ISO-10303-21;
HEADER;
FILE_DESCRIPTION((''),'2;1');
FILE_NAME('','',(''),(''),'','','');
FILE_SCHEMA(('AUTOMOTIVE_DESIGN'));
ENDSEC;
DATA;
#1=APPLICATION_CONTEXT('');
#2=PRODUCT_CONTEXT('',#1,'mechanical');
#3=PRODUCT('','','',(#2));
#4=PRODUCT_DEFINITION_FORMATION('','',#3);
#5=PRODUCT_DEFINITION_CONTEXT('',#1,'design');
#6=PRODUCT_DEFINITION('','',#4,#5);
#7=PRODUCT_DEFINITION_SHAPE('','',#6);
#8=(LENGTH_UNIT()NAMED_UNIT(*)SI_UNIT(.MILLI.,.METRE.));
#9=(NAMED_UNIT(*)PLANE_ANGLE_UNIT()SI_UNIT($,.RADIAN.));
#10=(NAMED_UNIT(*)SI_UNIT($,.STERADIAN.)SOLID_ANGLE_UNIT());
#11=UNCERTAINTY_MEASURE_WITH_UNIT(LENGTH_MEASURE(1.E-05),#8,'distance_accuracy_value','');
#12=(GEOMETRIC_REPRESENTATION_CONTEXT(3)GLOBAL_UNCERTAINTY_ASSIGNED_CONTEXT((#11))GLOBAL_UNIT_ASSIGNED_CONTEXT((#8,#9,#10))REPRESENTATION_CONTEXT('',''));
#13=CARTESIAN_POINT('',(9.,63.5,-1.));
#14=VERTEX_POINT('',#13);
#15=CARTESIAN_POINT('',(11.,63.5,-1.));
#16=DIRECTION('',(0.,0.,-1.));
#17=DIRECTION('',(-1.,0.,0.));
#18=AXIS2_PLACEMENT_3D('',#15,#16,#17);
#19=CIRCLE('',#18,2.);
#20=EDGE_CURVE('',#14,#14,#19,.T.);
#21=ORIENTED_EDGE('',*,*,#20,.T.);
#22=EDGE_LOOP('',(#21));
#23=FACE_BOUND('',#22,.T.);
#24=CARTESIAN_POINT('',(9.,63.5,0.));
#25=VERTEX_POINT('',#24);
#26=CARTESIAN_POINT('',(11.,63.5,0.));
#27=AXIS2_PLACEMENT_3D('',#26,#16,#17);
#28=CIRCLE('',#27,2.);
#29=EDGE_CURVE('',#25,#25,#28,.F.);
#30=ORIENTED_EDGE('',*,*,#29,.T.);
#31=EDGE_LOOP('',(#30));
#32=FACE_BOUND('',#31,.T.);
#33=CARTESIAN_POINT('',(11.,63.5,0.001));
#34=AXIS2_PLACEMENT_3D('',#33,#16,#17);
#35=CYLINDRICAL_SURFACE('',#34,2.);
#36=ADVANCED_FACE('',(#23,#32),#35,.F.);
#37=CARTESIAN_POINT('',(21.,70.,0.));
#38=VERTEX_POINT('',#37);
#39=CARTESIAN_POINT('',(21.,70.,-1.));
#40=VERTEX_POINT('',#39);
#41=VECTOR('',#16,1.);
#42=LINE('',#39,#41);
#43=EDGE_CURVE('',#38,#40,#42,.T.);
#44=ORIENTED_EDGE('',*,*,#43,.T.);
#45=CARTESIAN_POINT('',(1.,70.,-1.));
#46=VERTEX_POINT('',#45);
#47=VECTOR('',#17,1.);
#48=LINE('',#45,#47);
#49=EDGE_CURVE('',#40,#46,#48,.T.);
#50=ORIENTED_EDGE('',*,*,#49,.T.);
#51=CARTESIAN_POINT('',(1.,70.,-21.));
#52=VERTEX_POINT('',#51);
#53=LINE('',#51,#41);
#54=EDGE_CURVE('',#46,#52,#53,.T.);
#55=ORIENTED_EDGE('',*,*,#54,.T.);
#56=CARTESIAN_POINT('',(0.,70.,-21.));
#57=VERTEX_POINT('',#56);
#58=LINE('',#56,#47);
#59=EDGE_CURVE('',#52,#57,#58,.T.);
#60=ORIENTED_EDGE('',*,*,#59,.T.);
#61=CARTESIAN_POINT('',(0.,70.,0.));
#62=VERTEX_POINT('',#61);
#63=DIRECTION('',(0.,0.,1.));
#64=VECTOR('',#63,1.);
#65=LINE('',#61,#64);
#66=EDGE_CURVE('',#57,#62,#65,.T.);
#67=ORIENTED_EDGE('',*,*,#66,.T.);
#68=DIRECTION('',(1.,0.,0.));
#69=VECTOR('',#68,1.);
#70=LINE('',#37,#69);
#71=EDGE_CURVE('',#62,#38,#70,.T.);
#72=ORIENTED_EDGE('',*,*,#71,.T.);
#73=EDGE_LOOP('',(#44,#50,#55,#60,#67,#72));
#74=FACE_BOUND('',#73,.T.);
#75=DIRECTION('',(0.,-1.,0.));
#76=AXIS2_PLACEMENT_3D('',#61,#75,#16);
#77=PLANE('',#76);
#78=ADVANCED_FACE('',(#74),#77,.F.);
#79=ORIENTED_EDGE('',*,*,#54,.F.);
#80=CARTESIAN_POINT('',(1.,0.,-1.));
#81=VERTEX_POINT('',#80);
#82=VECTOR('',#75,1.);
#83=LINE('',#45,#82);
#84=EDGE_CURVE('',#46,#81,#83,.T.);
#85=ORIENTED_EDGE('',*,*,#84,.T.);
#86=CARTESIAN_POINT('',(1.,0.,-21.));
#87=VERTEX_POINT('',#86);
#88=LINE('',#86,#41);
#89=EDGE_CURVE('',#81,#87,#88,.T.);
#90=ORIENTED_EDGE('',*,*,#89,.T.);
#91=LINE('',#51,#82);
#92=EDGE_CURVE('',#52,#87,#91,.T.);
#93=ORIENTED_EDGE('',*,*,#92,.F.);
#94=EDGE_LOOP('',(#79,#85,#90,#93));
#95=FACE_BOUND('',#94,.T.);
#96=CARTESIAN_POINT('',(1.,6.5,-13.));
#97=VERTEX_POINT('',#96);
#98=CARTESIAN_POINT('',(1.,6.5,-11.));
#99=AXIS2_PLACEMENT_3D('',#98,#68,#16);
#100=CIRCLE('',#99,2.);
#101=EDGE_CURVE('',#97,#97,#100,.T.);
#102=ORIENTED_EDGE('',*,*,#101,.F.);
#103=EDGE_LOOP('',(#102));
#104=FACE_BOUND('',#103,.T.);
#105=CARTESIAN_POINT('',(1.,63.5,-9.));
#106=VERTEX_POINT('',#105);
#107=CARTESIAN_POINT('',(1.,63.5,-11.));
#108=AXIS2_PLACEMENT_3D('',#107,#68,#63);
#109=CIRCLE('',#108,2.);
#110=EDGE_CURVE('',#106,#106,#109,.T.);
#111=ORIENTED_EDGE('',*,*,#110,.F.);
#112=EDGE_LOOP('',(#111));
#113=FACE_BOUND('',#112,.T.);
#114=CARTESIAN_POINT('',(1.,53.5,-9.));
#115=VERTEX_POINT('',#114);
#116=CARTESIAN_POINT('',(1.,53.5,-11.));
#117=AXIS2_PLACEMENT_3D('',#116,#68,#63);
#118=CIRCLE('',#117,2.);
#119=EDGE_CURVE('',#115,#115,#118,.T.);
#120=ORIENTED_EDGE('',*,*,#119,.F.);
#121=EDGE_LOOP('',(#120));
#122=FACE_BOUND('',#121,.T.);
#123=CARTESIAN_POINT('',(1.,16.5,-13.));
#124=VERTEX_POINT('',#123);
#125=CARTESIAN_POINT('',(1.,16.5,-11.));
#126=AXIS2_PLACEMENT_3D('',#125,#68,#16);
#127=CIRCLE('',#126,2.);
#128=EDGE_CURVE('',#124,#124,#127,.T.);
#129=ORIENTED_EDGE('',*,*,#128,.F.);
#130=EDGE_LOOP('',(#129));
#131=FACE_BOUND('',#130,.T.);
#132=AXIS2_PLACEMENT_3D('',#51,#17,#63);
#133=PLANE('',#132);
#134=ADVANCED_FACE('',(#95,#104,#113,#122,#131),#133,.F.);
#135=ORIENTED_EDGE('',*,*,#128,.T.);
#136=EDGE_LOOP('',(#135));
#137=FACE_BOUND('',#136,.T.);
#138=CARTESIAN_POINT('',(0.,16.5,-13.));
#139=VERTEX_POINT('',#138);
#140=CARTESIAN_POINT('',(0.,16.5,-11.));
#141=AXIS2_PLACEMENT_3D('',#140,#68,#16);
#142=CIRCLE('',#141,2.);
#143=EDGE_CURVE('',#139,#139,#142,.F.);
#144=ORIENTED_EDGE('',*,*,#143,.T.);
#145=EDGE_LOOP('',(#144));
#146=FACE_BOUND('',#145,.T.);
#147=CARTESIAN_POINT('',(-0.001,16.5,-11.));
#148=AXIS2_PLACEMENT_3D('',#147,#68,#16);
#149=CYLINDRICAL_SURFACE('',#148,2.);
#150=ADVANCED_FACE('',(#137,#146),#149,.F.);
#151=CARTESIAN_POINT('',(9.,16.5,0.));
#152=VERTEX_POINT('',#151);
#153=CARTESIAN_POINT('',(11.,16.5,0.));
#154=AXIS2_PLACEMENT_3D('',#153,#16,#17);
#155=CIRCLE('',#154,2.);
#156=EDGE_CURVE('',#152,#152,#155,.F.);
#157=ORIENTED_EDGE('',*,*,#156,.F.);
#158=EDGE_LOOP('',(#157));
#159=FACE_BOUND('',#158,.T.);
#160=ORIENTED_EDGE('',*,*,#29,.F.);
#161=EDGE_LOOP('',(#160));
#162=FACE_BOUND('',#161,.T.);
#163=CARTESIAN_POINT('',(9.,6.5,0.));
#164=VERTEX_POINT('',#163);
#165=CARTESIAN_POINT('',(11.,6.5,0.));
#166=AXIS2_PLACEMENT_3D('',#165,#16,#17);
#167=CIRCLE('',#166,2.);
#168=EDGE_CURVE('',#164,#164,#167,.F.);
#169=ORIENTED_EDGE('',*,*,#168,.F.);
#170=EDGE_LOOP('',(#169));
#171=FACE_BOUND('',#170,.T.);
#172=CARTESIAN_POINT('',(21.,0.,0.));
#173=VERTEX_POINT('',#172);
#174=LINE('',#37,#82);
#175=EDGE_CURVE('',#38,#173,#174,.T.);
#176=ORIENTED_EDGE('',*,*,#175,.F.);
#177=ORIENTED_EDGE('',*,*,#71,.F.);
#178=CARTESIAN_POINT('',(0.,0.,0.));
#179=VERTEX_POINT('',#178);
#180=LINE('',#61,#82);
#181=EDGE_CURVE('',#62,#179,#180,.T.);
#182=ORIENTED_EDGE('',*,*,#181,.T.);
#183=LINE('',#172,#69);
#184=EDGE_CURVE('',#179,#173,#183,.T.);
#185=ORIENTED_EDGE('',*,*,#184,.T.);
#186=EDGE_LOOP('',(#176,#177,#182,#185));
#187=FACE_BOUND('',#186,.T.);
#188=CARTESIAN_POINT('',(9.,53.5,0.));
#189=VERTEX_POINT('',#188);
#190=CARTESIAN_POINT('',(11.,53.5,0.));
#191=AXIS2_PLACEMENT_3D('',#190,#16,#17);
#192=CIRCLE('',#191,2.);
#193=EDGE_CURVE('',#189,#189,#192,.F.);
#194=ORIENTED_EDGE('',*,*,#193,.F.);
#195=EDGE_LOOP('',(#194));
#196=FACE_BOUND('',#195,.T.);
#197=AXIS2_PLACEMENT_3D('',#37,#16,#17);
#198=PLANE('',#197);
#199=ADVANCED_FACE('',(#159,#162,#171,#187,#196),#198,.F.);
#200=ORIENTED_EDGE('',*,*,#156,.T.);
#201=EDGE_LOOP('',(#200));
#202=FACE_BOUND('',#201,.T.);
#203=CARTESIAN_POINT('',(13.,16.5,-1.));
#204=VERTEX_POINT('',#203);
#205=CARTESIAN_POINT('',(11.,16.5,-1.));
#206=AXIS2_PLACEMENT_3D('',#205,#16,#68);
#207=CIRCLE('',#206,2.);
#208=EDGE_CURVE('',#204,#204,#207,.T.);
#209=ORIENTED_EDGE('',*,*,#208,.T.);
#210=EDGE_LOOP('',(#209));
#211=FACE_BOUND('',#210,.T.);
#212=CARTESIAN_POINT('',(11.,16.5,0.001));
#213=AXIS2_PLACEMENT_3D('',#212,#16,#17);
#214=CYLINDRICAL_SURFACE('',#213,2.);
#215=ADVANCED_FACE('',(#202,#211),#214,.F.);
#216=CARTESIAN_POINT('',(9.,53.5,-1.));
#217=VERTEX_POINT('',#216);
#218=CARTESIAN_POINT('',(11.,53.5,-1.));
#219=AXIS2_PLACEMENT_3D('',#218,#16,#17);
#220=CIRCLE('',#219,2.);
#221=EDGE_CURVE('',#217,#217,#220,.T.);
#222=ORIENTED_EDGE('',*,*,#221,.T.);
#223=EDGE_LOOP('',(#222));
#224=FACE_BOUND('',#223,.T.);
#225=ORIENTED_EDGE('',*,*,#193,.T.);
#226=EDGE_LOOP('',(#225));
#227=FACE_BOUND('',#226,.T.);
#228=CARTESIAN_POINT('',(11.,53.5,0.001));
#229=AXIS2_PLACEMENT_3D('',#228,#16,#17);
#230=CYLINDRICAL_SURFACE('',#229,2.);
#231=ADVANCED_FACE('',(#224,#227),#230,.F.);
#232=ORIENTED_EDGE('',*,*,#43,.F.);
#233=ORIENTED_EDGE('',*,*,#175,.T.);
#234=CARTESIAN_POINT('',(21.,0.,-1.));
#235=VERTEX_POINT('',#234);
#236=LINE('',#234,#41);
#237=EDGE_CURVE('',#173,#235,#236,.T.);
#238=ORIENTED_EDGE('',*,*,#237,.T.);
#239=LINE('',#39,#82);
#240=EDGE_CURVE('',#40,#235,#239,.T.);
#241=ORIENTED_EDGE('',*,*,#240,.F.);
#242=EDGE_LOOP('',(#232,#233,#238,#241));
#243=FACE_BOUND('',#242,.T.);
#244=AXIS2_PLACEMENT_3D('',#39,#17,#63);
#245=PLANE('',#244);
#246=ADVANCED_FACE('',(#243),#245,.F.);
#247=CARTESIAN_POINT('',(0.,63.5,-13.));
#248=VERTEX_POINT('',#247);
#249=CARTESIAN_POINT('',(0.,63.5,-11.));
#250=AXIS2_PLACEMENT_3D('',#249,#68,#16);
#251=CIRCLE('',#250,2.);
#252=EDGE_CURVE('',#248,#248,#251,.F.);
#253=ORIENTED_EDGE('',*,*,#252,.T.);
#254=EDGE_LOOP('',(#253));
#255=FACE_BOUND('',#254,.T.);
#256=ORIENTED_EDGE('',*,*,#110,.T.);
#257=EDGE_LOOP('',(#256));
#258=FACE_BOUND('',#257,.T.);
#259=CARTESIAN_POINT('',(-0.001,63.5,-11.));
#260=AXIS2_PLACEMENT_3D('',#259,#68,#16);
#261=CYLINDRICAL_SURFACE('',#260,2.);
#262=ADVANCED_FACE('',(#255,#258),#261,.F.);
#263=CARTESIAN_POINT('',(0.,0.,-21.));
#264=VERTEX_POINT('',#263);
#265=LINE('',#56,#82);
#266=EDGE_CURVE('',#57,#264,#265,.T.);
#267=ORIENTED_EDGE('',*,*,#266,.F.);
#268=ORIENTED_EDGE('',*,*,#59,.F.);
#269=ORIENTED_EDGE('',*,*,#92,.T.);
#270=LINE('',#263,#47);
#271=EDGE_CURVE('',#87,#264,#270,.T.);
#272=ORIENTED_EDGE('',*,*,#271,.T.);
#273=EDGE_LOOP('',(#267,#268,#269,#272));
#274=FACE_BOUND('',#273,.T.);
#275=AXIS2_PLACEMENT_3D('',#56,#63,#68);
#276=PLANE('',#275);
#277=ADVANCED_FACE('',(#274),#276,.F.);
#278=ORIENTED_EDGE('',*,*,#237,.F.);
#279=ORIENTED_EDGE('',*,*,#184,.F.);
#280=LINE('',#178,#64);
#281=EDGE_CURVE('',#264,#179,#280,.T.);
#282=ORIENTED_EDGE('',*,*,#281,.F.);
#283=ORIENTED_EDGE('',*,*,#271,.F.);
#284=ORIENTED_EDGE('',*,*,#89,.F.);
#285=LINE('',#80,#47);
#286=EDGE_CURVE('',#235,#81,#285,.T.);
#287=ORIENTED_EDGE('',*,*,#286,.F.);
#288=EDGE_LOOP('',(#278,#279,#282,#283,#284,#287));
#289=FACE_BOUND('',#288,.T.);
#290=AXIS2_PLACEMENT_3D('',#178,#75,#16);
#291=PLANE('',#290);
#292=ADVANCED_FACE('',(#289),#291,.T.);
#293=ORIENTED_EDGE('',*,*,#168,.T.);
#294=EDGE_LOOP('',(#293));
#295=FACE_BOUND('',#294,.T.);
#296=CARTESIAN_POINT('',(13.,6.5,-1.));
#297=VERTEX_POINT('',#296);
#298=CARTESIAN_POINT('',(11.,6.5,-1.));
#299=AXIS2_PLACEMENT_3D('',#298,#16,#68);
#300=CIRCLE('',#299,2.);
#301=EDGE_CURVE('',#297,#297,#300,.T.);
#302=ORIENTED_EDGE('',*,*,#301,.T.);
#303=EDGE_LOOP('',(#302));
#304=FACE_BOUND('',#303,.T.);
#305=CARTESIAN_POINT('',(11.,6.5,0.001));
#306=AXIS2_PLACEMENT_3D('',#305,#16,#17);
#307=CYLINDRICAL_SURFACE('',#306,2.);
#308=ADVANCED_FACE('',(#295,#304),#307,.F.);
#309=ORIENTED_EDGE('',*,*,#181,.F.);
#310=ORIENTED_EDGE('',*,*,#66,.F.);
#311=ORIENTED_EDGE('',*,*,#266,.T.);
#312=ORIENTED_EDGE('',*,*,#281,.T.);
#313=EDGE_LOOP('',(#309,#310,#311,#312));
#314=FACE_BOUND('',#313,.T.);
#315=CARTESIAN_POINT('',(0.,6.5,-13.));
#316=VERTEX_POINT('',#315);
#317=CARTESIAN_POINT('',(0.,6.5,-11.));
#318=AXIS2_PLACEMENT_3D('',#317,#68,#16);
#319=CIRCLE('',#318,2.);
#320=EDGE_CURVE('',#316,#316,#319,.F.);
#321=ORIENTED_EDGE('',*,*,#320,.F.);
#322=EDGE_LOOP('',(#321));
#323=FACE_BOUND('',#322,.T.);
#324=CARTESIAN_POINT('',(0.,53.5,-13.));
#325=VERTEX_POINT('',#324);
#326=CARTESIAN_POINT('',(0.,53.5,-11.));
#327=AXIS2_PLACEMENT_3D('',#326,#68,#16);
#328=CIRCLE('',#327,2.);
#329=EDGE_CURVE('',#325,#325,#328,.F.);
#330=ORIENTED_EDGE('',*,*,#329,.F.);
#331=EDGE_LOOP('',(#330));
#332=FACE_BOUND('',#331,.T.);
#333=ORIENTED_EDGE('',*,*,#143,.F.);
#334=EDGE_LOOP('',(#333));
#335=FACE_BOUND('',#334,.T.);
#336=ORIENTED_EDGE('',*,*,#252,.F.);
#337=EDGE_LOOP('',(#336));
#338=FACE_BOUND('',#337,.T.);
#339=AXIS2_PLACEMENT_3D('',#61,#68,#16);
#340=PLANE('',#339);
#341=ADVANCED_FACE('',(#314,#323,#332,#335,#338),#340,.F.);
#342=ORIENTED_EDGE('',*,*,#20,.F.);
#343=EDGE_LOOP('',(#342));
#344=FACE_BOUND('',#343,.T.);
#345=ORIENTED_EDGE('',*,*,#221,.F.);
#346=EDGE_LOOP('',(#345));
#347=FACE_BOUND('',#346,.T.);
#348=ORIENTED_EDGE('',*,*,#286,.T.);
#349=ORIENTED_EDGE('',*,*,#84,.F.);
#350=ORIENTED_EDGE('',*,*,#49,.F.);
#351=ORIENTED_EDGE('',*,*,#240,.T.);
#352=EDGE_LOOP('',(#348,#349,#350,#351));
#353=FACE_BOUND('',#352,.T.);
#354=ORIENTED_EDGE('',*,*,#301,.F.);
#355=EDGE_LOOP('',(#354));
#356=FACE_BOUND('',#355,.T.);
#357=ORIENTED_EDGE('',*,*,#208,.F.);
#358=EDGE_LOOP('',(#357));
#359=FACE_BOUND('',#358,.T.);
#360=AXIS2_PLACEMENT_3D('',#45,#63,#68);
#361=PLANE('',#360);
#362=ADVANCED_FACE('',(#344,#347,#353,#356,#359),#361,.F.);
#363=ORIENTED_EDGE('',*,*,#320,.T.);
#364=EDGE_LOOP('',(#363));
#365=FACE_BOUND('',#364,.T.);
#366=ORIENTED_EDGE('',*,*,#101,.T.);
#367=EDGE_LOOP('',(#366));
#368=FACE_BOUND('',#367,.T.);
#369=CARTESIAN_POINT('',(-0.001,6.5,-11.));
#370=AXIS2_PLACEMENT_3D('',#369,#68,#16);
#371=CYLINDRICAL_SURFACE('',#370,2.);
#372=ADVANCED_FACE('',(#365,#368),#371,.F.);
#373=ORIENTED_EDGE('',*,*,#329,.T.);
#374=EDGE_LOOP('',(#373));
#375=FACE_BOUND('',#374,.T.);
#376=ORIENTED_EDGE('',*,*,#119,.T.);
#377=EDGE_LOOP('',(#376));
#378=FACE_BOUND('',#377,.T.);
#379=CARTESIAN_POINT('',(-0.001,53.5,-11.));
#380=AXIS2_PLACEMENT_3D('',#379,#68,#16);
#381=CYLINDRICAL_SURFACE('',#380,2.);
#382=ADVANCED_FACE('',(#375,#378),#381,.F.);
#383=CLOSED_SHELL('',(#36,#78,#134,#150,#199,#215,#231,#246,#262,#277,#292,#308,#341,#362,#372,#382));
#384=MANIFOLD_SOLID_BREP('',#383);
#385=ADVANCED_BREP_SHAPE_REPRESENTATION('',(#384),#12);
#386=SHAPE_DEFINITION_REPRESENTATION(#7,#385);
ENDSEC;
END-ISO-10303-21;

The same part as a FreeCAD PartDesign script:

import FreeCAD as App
import Part
import Sketcher
Q = App.Units.Quantity


def add_polygon(sketch, points):
    """Adds a closed chain of lines whose ends are joined by coincident constraints."""
    first, n = sketch.GeometryCount, len(points)
    for a, b in zip(points, points[1:] + points[:1]):
        sketch.addGeometry(Part.LineSegment(App.Vector(*a, 0), App.Vector(*b, 0)), False)
    for i in range(n):
        sketch.addConstraint(Sketcher.Constraint("Coincident", first + i, 2, first + (i + 1) % n, 1))

doc = App.newDocument("Part")
body = doc.addObject("PartDesign::Body", "Body")

sketch1 = doc.addObject("Sketcher::SketchObject", "Sketch")
body.addObject(sketch1)
sketch1.AttachmentSupport = (doc.XZ_Plane, [""])
sketch1.MapMode = "FlatFace"
add_polygon(sketch1, [(0, -21), (0, 0), (21, 0), (21, -1), (1, -1), (1, -21)])
sketch1.addConstraint([
    Sketcher.Constraint("Vertical", 0),
    Sketcher.Constraint("Horizontal", 1),
    Sketcher.Constraint("Vertical", 2),
    Sketcher.Constraint("Horizontal", 3),
    Sketcher.Constraint("Vertical", 4),
    Sketcher.Constraint("Horizontal", 5),
    Sketcher.Constraint("Coincident", 0, 2, -1, 1),
    Sketcher.Constraint("Equal", 1, 0),
    Sketcher.Constraint("Equal", 5, 2),
    Sketcher.Constraint("DistanceX", 1, 1, 1, 2, Q("21 mm")),
    Sketcher.Constraint("DistanceX", 3, 2, 3, 1, Q("20 mm")),
])
pad1 = doc.addObject("PartDesign::Pad", "Pad")
body.addObject(pad1)
pad1.Profile = sketch1
pad1.Length = 70
pad1.Reversed = True

sketch2 = doc.addObject("Sketcher::SketchObject", "Sketch001")
body.addObject(sketch2)
sketch2.AttachmentSupport = (doc.YZ_Plane, [""])
sketch2.MapMode = "FlatFace"
sketch2.AttachmentOffset = App.Placement(App.Vector(0, 0, 1), App.Rotation())
sketch2.addGeometry(Part.Circle(App.Vector(16.5, -11, 0), App.Vector(0, 0, 1), 2), False)
sketch2.addConstraint([
    Sketcher.Constraint("Diameter", 0, Q("4 mm")),
    Sketcher.Constraint("DistanceY", 0, 3, -1, 1, Q("11 mm")),
    Sketcher.Constraint("DistanceX", -1, 1, 0, 3, Q("16.5 mm")),
])
pocket1 = doc.addObject("PartDesign::Pocket", "Pocket")
body.addObject(pocket1)
pocket1.Profile = sketch2
pocket1.Type = "UpToFirst"

sketch3 = doc.addObject("Sketcher::SketchObject", "Sketch002")
body.addObject(sketch3)
sketch3.AttachmentSupport = (doc.YZ_Plane, [""])
sketch3.MapMode = "FlatFace"
sketch3.AttachmentOffset = App.Placement(App.Vector(0, 0, 1), App.Rotation())
sketch3.addGeometry(Part.Circle(App.Vector(6.5, -11, 0), App.Vector(0, 0, 1), 2), False)
sketch3.addConstraint([
    Sketcher.Constraint("Diameter", 0, Q("4 mm")),
    Sketcher.Constraint("DistanceY", 0, 3, -1, 1, Q("11 mm")),
    Sketcher.Constraint("DistanceX", -1, 1, 0, 3, Q("6.5 mm")),
])
pocket2 = doc.addObject("PartDesign::Pocket", "Pocket001")
body.addObject(pocket2)
pocket2.Profile = sketch3
pocket2.Type = "UpToFirst"

sketch4 = doc.addObject("Sketcher::SketchObject", "Sketch003")
body.addObject(sketch4)
sketch4.AttachmentSupport = (doc.YZ_Plane, [""])
sketch4.MapMode = "FlatFace"
sketch4.AttachmentOffset = App.Placement(App.Vector(0, 0, 1), App.Rotation())
sketch4.addGeometry(Part.Circle(App.Vector(53.5, -11, 0), App.Vector(0, 0, 1), 2), False)
sketch4.addConstraint([
    Sketcher.Constraint("Diameter", 0, Q("4 mm")),
    Sketcher.Constraint("DistanceY", 0, 3, -1, 1, Q("11 mm")),
    Sketcher.Constraint("DistanceX", -1, 1, 0, 3, Q("53.5 mm")),
])
pocket3 = doc.addObject("PartDesign::Pocket", "Pocket002")
body.addObject(pocket3)
pocket3.Profile = sketch4
pocket3.Type = "UpToFirst"

sketch5 = doc.addObject("Sketcher::SketchObject", "Sketch004")
body.addObject(sketch5)
sketch5.AttachmentSupport = (doc.YZ_Plane, [""])
sketch5.MapMode = "FlatFace"
sketch5.AttachmentOffset = App.Placement(App.Vector(0, 0, 1), App.Rotation())
sketch5.addGeometry(Part.Circle(App.Vector(63.5, -11, 0), App.Vector(0, 0, 1), 2), False)
sketch5.addConstraint([
    Sketcher.Constraint("Diameter", 0, Q("4 mm")),
    Sketcher.Constraint("DistanceY", 0, 3, -1, 1, Q("11 mm")),
    Sketcher.Constraint("DistanceX", -1, 1, 0, 3, Q("63.5 mm")),
])
pocket4 = doc.addObject("PartDesign::Pocket", "Pocket003")
body.addObject(pocket4)
pocket4.Profile = sketch5
pocket4.Type = "UpToFirst"

sketch6 = doc.addObject("Sketcher::SketchObject", "Sketch005")
body.addObject(sketch6)
sketch6.AttachmentSupport = (doc.XY_Plane, [""])
sketch6.MapMode = "FlatFace"
sketch6.AttachmentOffset = App.Placement(App.Vector(0, 0, -1), App.Rotation())
sketch6.addGeometry(Part.Circle(App.Vector(11, 53.5, 0), App.Vector(0, 0, 1), 2), False)
sketch6.addConstraint([
    Sketcher.Constraint("Diameter", 0, Q("4 mm")),
    Sketcher.Constraint("DistanceX", -1, 1, 0, 3, Q("11 mm")),
    Sketcher.Constraint("DistanceY", -1, 1, 0, 3, Q("53.5 mm")),
])
pocket5 = doc.addObject("PartDesign::Pocket", "Pocket004")
body.addObject(pocket5)
pocket5.Profile = sketch6
pocket5.Type = "UpToFirst"
pocket5.Reversed = True

sketch7 = doc.addObject("Sketcher::SketchObject", "Sketch006")
body.addObject(sketch7)
sketch7.AttachmentSupport = (doc.XY_Plane, [""])
sketch7.MapMode = "FlatFace"
sketch7.AttachmentOffset = App.Placement(App.Vector(0, 0, -1), App.Rotation())
sketch7.addGeometry(Part.Circle(App.Vector(11, 63.5, 0), App.Vector(0, 0, 1), 2), False)
sketch7.addConstraint([
    Sketcher.Constraint("Diameter", 0, Q("4 mm")),
    Sketcher.Constraint("DistanceX", -1, 1, 0, 3, Q("11 mm")),
    Sketcher.Constraint("DistanceY", -1, 1, 0, 3, Q("63.5 mm")),
])
pocket6 = doc.addObject("PartDesign::Pocket", "Pocket005")
body.addObject(pocket6)
pocket6.Profile = sketch7
pocket6.Type = "UpToFirst"
pocket6.Reversed = True

sketch8 = doc.addObject("Sketcher::SketchObject", "Sketch007")
body.addObject(sketch8)
sketch8.AttachmentSupport = (doc.XY_Plane, [""])
sketch8.MapMode = "FlatFace"
sketch8.AttachmentOffset = App.Placement(App.Vector(0, 0, -1), App.Rotation())
sketch8.addGeometry(Part.Circle(App.Vector(11, 6.5, 0), App.Vector(0, 0, 1), 2), False)
sketch8.addConstraint([
    Sketcher.Constraint("Diameter", 0, Q("4 mm")),
    Sketcher.Constraint("DistanceX", -1, 1, 0, 3, Q("11 mm")),
    Sketcher.Constraint("DistanceY", -1, 1, 0, 3, Q("6.5 mm")),
])
pocket7 = doc.addObject("PartDesign::Pocket", "Pocket006")
body.addObject(pocket7)
pocket7.Profile = sketch8
pocket7.Type = "UpToFirst"
pocket7.Reversed = True

sketch9 = doc.addObject("Sketcher::SketchObject", "Sketch008")
body.addObject(sketch9)
sketch9.AttachmentSupport = (doc.XY_Plane, [""])
sketch9.MapMode = "FlatFace"
sketch9.AttachmentOffset = App.Placement(App.Vector(0, 0, -1), App.Rotation())
sketch9.addGeometry(Part.Circle(App.Vector(11, 16.5, 0), App.Vector(0, 0, 1), 2), False)
sketch9.addConstraint([
    Sketcher.Constraint("Diameter", 0, Q("4 mm")),
    Sketcher.Constraint("DistanceX", -1, 1, 0, 3, Q("11 mm")),
    Sketcher.Constraint("DistanceY", -1, 1, 0, 3, Q("16.5 mm")),
])
pocket8 = doc.addObject("PartDesign::Pocket", "Pocket007")
body.addObject(pocket8)
pocket8.Profile = sketch9
pocket8.Type = "UpToFirst"
pocket8.Reversed = True

doc.recompute()
